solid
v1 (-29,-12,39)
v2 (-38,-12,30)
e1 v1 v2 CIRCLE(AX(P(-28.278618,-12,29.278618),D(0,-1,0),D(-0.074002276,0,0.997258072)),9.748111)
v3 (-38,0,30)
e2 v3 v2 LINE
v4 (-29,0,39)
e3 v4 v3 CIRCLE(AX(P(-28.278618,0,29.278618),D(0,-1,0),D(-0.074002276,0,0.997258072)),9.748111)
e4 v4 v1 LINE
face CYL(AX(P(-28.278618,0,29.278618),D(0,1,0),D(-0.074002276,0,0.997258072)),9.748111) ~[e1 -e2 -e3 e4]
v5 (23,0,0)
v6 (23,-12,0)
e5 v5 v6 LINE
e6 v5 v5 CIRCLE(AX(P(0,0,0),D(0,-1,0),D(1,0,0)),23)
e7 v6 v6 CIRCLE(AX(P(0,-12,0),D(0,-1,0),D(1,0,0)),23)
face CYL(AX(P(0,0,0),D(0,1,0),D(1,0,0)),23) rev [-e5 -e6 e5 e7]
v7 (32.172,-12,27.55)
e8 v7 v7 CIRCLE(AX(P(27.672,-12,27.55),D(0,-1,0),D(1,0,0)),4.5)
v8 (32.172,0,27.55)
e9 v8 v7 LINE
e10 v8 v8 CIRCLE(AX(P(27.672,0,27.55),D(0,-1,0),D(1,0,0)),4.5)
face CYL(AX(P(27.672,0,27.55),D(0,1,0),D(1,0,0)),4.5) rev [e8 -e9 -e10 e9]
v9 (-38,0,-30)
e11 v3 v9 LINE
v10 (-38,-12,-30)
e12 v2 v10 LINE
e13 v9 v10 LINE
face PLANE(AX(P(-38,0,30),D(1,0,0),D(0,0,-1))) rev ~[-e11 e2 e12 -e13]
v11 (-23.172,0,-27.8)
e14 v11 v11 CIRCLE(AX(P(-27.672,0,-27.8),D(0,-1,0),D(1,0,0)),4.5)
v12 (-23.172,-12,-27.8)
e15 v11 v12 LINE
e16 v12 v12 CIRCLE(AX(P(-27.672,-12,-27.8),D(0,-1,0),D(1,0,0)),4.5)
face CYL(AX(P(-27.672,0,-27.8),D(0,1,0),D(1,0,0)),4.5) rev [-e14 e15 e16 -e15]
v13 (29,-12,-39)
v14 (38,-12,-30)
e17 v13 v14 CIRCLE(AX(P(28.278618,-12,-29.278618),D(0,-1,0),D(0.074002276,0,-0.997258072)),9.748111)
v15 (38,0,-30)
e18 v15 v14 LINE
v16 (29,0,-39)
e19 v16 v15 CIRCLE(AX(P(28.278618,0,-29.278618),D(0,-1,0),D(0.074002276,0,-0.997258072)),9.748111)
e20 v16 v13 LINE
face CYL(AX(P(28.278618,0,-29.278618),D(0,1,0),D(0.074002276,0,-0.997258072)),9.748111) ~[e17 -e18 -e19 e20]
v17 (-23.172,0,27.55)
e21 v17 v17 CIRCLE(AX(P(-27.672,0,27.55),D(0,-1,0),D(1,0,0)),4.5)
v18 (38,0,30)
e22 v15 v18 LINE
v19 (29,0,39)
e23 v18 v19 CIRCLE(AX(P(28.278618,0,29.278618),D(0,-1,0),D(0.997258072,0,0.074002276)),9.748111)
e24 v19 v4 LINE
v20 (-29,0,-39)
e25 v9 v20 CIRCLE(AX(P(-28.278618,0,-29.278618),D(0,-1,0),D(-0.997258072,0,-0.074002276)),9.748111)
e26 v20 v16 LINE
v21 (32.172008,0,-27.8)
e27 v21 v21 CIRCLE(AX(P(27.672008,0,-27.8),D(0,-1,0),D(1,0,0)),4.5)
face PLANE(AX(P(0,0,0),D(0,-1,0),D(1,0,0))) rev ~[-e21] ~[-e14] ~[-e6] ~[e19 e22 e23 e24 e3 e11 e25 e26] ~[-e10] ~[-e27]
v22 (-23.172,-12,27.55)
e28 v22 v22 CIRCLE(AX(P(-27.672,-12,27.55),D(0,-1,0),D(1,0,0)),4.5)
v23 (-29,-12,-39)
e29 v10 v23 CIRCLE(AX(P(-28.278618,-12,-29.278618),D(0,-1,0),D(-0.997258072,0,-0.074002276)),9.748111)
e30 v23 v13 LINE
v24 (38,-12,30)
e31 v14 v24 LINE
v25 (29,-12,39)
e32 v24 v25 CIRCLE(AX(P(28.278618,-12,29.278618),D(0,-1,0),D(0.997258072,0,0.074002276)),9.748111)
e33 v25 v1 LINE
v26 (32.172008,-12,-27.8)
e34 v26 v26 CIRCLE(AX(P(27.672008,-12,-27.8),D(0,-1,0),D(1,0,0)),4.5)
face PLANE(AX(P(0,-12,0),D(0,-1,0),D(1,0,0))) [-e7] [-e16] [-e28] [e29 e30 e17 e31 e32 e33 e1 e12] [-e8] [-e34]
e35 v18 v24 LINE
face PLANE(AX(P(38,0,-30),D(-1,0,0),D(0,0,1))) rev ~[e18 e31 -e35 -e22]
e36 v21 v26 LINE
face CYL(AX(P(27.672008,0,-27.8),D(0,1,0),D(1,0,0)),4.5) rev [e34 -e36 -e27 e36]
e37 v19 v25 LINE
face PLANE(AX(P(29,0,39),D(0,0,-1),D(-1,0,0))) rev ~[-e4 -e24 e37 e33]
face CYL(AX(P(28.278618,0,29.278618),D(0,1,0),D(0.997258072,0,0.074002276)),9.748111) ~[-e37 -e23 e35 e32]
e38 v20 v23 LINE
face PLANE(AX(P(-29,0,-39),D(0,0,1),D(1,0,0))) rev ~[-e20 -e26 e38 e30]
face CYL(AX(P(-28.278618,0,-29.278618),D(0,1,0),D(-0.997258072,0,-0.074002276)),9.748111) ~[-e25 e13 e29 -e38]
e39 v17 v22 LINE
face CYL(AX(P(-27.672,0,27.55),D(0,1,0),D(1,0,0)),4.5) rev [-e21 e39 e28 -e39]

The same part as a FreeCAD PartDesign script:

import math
import FreeCAD as App
import Part
import Sketcher

doc = App.newDocument("Part")
body = doc.addObject("PartDesign::Body", "Body")

sketch1 = body.newObject("Sketcher::SketchObject", "Sketch")
sketch1.AttachmentSupport = (doc.getObject("XZ_Plane"), [""])
sketch1.MapMode = "FlatFace"
sketch1.addGeometry([
    Part.ArcOfCircle(Part.Circle(App.Vector(28.3, 29.3, 0), App.Vector(0, 0, 1), 9.7), math.radians(4), math.radians(86)),
    Part.LineSegment(App.Vector(29, 39, 0), App.Vector(-29, 39, 0)),
    Part.ArcOfCircle(Part.Circle(App.Vector(-28.3, 29.3, 0), App.Vector(0, 0, 1), 9.7), math.radians(94), math.radians(176)),
    Part.LineSegment(App.Vector(-38, 30, 0), App.Vector(-38, -30, 0)),
    Part.ArcOfCircle(Part.Circle(App.Vector(-28.3, -29.3, 0), App.Vector(0, 0, 1), 9.7), math.radians(-176), math.radians(-94)),
    Part.LineSegment(App.Vector(-29, -39, 0), App.Vector(29, -39, 0)),
    Part.ArcOfCircle(Part.Circle(App.Vector(28.3, -29.3, 0), App.Vector(0, 0, 1), 9.7), math.radians(-86), math.radians(-4)),
    Part.LineSegment(App.Vector(38, -30, 0), App.Vector(38, 30, 0)),
    Part.Circle(App.Vector(-27.7, -27.8, 0), App.Vector(0, 0, 1), 4.5),
    Part.Circle(App.Vector(27.7, -27.8, 0), App.Vector(0, 0, 1), 4.5),
    Part.Circle(App.Vector(0, 0, 0), App.Vector(0, 0, 1), 23),
    Part.Circle(App.Vector(-27.7, 27.6, 0), App.Vector(0, 0, 1), 4.5),
    Part.Circle(App.Vector(27.7, 27.6, 0), App.Vector(0, 0, 1), 4.5),
], False)
sketch1.addConstraint([
    Sketcher.Constraint("Coincident", 0, 2, 1, 1),
    Sketcher.Constraint("Coincident", 1, 2, 2, 1),
    Sketcher.Constraint("Coincident", 2, 2, 3, 1),
    Sketcher.Constraint("Coincident", 3, 2, 4, 1),
    Sketcher.Constraint("Coincident", 4, 2, 5, 1),
    Sketcher.Constraint("Coincident", 5, 2, 6, 1),
    Sketcher.Constraint("Coincident", 6, 2, 7, 1),
    Sketcher.Constraint("Coincident", 7, 2, 0, 1),
    Sketcher.Constraint("Horizontal", 1),
    Sketcher.Constraint("Vertical", 3),
    Sketcher.Constraint("Horizontal", 5),
    Sketcher.Constraint("Vertical", 7),
    Sketcher.Constraint("Coincident", 10, 3, -1, 1),
    Sketcher.Constraint("Equal", 0, 2),
    Sketcher.Constraint("Equal", 2, 4),
    Sketcher.Constraint("Equal", 4, 6),
    Sketcher.Constraint("Equal", 8, 9),
    Sketcher.Constraint("Equal", 9, 11),
    Sketcher.Constraint("Equal", 11, 12),
    Sketcher.Constraint("Symmetric", 0, 3, 4, 3, -1, 1),
    Sketcher.Constraint("Symmetric", 2, 3, 6, 3, -1, 1),
    Sketcher.Constraint("Symmetric", 0, 3, 2, 3, -2),
    Sketcher.Constraint("Symmetric", 8, 3, 9, 3, -2),
    Sketcher.Constraint("Symmetric", 11, 3, 12, 3, -2),
    Sketcher.Constraint("Horizontal", 3, 2, 6, 2),
    Sketcher.Constraint("Vertical", 8, 3, 11, 3),
    Sketcher.Constraint("Vertical", 1, 2, 4, 2),
    Sketcher.Constraint("Diameter", 8, 9.0),
    Sketcher.Constraint("Diameter", 10, 46.0),
    Sketcher.Constraint("DistanceX", 1, 2, 1, 1, 58.0),
    Sketcher.Constraint("DistanceY", 3, 2, 3, 1, 60.0),
    Sketcher.Constraint("DistanceY", -1, 1, 0, 2, 39.0),
    Sketcher.Constraint("DistanceX", 2, 2, -1, 1, 38.0),
    Sketcher.Constraint("DistanceY", 8, 3, -1, 1, 27.8),
    Sketcher.Constraint("DistanceY", -1, 1, 11, 3, 27.55),
    Sketcher.Constraint("Radius", 0, 9.748111),
    Sketcher.Constraint("DistanceX", 8, 3, -1, 1, 27.672),
])
pad1 = body.newObject("PartDesign::Pad", "Pad")
pad1.Profile = sketch1
pad1.Length = 12

doc.recompute()
